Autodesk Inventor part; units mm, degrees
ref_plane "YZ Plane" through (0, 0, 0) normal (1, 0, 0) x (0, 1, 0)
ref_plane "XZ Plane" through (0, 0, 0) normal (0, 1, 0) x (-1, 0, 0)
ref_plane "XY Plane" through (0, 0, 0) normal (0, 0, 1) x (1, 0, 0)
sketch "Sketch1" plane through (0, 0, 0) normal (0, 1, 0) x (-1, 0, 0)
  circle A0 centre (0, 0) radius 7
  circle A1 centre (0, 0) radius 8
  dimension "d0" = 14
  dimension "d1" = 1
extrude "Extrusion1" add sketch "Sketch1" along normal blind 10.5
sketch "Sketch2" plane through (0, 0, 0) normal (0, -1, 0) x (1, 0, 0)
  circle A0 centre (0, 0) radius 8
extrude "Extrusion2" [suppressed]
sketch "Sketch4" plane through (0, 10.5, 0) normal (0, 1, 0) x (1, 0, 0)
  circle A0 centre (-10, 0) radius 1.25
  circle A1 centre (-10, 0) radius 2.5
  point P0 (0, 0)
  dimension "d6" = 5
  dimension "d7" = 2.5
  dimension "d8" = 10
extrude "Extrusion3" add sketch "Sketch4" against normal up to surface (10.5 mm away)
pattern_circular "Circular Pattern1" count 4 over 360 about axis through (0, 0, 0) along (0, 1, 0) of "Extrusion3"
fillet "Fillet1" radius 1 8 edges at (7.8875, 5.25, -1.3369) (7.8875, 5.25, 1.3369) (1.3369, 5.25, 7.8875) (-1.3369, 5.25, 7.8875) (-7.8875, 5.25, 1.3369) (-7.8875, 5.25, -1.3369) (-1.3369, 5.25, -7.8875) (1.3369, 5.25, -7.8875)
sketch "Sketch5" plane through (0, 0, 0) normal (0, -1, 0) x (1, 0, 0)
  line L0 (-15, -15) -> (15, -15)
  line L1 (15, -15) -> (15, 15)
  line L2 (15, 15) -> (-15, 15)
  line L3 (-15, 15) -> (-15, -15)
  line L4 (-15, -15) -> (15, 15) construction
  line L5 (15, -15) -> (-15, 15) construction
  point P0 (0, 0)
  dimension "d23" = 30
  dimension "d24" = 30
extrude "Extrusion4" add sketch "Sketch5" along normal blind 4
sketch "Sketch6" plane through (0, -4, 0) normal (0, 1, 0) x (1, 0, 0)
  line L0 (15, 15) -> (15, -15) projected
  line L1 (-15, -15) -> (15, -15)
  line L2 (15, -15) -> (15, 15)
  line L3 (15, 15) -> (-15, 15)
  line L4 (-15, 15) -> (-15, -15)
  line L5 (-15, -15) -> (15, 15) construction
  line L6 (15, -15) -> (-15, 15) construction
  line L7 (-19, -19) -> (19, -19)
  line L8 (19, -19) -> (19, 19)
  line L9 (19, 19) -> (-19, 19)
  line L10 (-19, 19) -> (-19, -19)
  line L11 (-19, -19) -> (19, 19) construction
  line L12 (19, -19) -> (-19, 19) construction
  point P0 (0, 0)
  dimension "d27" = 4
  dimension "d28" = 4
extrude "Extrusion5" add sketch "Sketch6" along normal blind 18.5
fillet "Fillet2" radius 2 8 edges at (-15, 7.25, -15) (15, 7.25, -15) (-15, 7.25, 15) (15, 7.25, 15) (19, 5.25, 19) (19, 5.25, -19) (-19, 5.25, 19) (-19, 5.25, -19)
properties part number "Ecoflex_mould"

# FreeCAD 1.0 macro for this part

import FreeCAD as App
import Part
import Sketcher
from FreeCAD import Vector
Q = App.Units.Quantity


def edges_at(feature, points):
    """Names of the edges that pass closest to the given points."""
    edges = feature.Shape.Edges
    near = lambda p: min(range(len(edges)), key=lambda i: edges[i].distToShape(Part.Vertex(*p))[0])
    return sorted({f"Edge{near(p) + 1}" for p in points})

doc = App.newDocument("Part")
params = doc.addObject("Spreadsheet::Sheet", "Params")
for row, (alias, value) in enumerate([
    ("sketch1_diameter", "14 mm"),
    ("sketch1_diameter2", "16 mm"),
    ("pad1_length", "10.5 mm"),
    ("sketch2_diameter", "5 mm"),
    ("sketch2_diameter2", "2.5 mm"),
    ("pad2_length", "10.5 mm"),
    ("fillet_radius", "1 mm"),
    ("sketch3_width", "30 mm"),
    ("pad3_length", "4 mm"),
    ("sketch4_width", "38 mm"),
    ("pad4_length", "18.5 mm"),
    ("fillet2_radius", "2 mm"),
], start=1):
    params.set(f"A{row}", alias)
    params.set(f"B{row}", "=" + value)
    params.setAlias(f"B{row}", alias)

body = doc.addObject("PartDesign::Body", "Body")

# Sketch on XZ plane
sketch1 = doc.addObject("Sketcher::SketchObject", "Sketch")
body.addObject(sketch1)
sketch1.AttachmentSupport = (doc.XZ_Plane, [""])
sketch1.MapMode = "FlatFace"
sketch1.addGeometry([
    Part.Circle(Vector(0, 0, 0), Vector(0, 0, 1), 8),
    Part.Circle(Vector(0, 0, 0), Vector(0, 0, 1), 7),
], False)
sketch1.addConstraint([
    Sketcher.Constraint("Coincident", 0, 3, -1, 1),
    Sketcher.Constraint("Coincident", 1, 3, -1, 1),
    Sketcher.Constraint("Diameter", 1, Q("14 mm")),
    Sketcher.Constraint("Diameter", 0, Q("16 mm")),
])
sketch1.setExpression("Constraints[2]", "Params.sketch1_diameter")
sketch1.setExpression("Constraints[3]", "Params.sketch1_diameter2")
pad1 = doc.addObject("PartDesign::Pad", "Pad")
body.addObject(pad1)
pad1.Profile = sketch1
pad1.setExpression("Length", "Params.pad1_length")
pad1.Reversed = True

# Sketch on XZ plane
sketch2 = doc.addObject("Sketcher::SketchObject", "Sketch001")
body.addObject(sketch2)
sketch2.AttachmentSupport = (doc.XZ_Plane, [""])
sketch2.MapMode = "FlatFace"
sketch2.AttachmentOffset = App.Placement(Vector(0, 0, -10.5), App.Rotation())
sketch2.addGeometry([
    Part.Circle(Vector(-10, 0, 0), Vector(0, 0, 1), 2.5),
    Part.Circle(Vector(-10, 0, 0), Vector(0, 0, 1), 1.2),
], False)
sketch2.addConstraint([
    Sketcher.Constraint("Coincident", 1, 3, 0, 3),
    Sketcher.Constraint("PointOnObject", 0, 3, -1),
    Sketcher.Constraint("Diameter", 0, Q("5 mm")),
    Sketcher.Constraint("Diameter", 1, Q("2.5 mm")),
    Sketcher.Constraint("DistanceX", 0, 3, -1, 1, Q("10 mm")),
])
sketch2.setExpression("Constraints[2]", "Params.sketch2_diameter")
sketch2.setExpression("Constraints[3]", "Params.sketch2_diameter2")
pad2 = doc.addObject("PartDesign::Pad", "Pad001")
body.addObject(pad2)
pad2.Profile = sketch2
pad2.setExpression("Length", "Params.pad2_length")
doc.recompute()

polarpattern = doc.addObject("PartDesign::PolarPattern", "PolarPattern")
body.addObject(polarpattern)
polarpattern.Originals = [pad2]
polarpattern.Axis = (doc.Y_Axis, [""])
polarpattern.Angle = 360
polarpattern.Occurrences = 4
body.Tip = polarpattern
doc.recompute()

fillet = doc.addObject("PartDesign::Fillet", "Fillet")
body.addObject(fillet)
fillet.Base = (polarpattern, edges_at(polarpattern, [
    (7.888, 5.25, -1.337),
    (7.888, 5.25, 1.337),
    (1.337, 5.25, 7.888),
    (-1.337, 5.25, 7.888),
    (-7.888, 5.25, 1.337),
    (-7.888, 5.25, -1.337),
    (-1.337, 5.25, -7.888),
    (1.337, 5.25, -7.888),
]))
fillet.setExpression("Radius", "Params.fillet_radius")

# Sketch on XZ plane
sketch3 = doc.addObject("Sketcher::SketchObject", "Sketch002")
body.addObject(sketch3)
sketch3.AttachmentSupport = (doc.XZ_Plane, [""])
sketch3.MapMode = "FlatFace"
sketch3.addGeometry([
    Part.LineSegment(Vector(-15, 15, 0), Vector(-15, -15, 0)),
    Part.LineSegment(Vector(-15, -15, 0), Vector(15, -15, 0)),
    Part.LineSegment(Vector(15, -15, 0), Vector(15, 15, 0)),
    Part.LineSegment(Vector(15, 15, 0), Vector(-15, 15, 0)),
], False)
sketch3.addConstraint([
    Sketcher.Constraint("Coincident", 0, 2, 1, 1),
    Sketcher.Constraint("Coincident", 1, 2, 2, 1),
    Sketcher.Constraint("Coincident", 2, 2, 3, 1),
    Sketcher.Constraint("Coincident", 3, 2, 0, 1),
    Sketcher.Constraint("Vertical", 0),
    Sketcher.Constraint("Horizontal", 1),
    Sketcher.Constraint("Vertical", 2),
    Sketcher.Constraint("Horizontal", 3),
    Sketcher.Constraint("Symmetric", 0, 2, 2, 2, -1, 1),
    Sketcher.Constraint("Equal", 3, 0),
    Sketcher.Constraint("DistanceX", 1, 1, 1, 2, Q("30 mm")),
])
sketch3.setExpression("Constraints[10]", "Params.sketch3_width")
pad3 = doc.addObject("PartDesign::Pad", "Pad002")
body.addObject(pad3)
pad3.Profile = sketch3
pad3.setExpression("Length", "Params.pad3_length")

# Sketch on XZ plane
sketch4 = doc.addObject("Sketcher::SketchObject", "Sketch003")
body.addObject(sketch4)
sketch4.AttachmentSupport = (doc.XZ_Plane, [""])
sketch4.MapMode = "FlatFace"
sketch4.AttachmentOffset = App.Placement(Vector(0, 0, 4), App.Rotation())
sketch4.addGeometry([
    Part.LineSegment(Vector(-19, -19, 0), Vector(-19, 19, 0)),  # 0
    Part.LineSegment(Vector(-19, 19, 0), Vector(19, 19, 0)),  # 1
    Part.LineSegment(Vector(19, 19, 0), Vector(19, -19, 0)),  # 2
    Part.LineSegment(Vector(19, -19, 0), Vector(-19, -19, 0)),  # 3
    Part.LineSegment(Vector(-15, -15, 0), Vector(15, -15, 0)),  # 4
    Part.LineSegment(Vector(15, -15, 0), Vector(15, 15, 0)),  # 5
    Part.LineSegment(Vector(15, 15, 0), Vector(-15, 15, 0)),  # 6
    Part.LineSegment(Vector(-15, 15, 0), Vector(-15, -15, 0)),  # 7
], False)
sketch4.addConstraint([
    Sketcher.Constraint("Coincident", 0, 2, 1, 1),
    Sketcher.Constraint("Coincident", 1, 2, 2, 1),
    Sketcher.Constraint("Coincident", 2, 2, 3, 1),
    Sketcher.Constraint("Coincident", 3, 2, 0, 1),
    Sketcher.Constraint("Coincident", 4, 2, 5, 1),
    Sketcher.Constraint("Coincident", 5, 2, 6, 1),
    Sketcher.Constraint("Coincident", 6, 2, 7, 1),
    Sketcher.Constraint("Coincident", 7, 2, 4, 1),
    Sketcher.Constraint("Vertical", 0),
    Sketcher.Constraint("Horizontal", 1),
    Sketcher.Constraint("Vertical", 2),
    Sketcher.Constraint("Horizontal", 3),
    Sketcher.Constraint("Horizontal", 4),
    Sketcher.Constraint("Vertical", 5),
    Sketcher.Constraint("Horizontal", 6),
    Sketcher.Constraint("Vertical", 7),
    Sketcher.Constraint("Symmetric", 0, 2, 2, 2, -1, 1),
    Sketcher.Constraint("Symmetric", 4, 2, 6, 2, -1, 1),
    Sketcher.Constraint("Equal", 3, 0),
    Sketcher.Constraint("Equal", 6, 5),
    Sketcher.Constraint("DistanceX", 4, 2, 2, 2, Q("4 mm")),
    Sketcher.Constraint("DistanceX", 1, 1, 1, 2, Q("38 mm")),
])
sketch4.setExpression("Constraints[21]", "Params.sketch4_width")
pad4 = doc.addObject("PartDesign::Pad", "Pad003")
body.addObject(pad4)
pad4.Profile = sketch4
pad4.setExpression("Length", "Params.pad4_length")
pad4.Reversed = True
doc.recompute()

fillet2 = doc.addObject("PartDesign::Fillet", "Fillet001")
body.addObject(fillet2)
fillet2.Base = (pad4, edges_at(pad4, [
    (-15, 7.25, -15),
    (15, 7.25, -15),
    (-15, 7.25, 15),
    (15, 7.25, 15),
    (19, 5.25, 19),
    (19, 5.25, -19),
    (-19, 5.25, 19),
    (-19, 5.25, -19),
]))
fillet2.setExpression("Radius", "Params.fillet2_radius")

doc.recompute()
